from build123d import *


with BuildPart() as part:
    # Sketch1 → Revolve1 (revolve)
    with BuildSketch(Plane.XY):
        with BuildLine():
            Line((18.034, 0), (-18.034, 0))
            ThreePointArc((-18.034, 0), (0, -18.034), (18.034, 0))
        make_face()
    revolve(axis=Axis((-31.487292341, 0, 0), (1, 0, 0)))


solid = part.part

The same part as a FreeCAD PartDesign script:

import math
import FreeCAD as App
import Part
import Sketcher

V = App.Vector
Q = App.Units.Quantity

doc = App.newDocument("Part")
body = doc.addObject("PartDesign::Body", "Body")

# Sketch on XY plane
sketch1 = doc.addObject("Sketcher::SketchObject", "Sketch")
body.addObject(sketch1)
sketch1.AttachmentSupport = (doc.XY_Plane, [""])
sketch1.MapMode = "FlatFace"
sketch1.addGeometry(Part.LineSegment(V(18.034, 0, 0), V(-18.034, 0, 0)), False)
sketch1.addGeometry(Part.ArcOfCircle(Part.Circle(V(0, 0, 0), V(0, 0, 1), 18.034), math.radians(180), math.radians(360)), False)
sketch1.addConstraint(Sketcher.Constraint("Coincident", 0, 1, 1, 2))
sketch1.addConstraint(Sketcher.Constraint("Coincident", 1, 1, 0, 2))
sketch1.addConstraint(Sketcher.Constraint("Horizontal", 0))
sketch1.addConstraint(Sketcher.Constraint("Coincident", 1, 3, -1, 1))
sketch1.addConstraint(Sketcher.Constraint("PointOnObject", 0, 1, -1))
sketch1.addConstraint(Sketcher.Constraint("Radius", 1, Q("0.71 in")))
revolution = doc.addObject("PartDesign::Revolution", "Revolution")
body.addObject(revolution)
revolution.Profile = sketch1
revolution.ReferenceAxis = (sketch1, ["H_Axis"])
revolution.Angle = 360

doc.recompute()
